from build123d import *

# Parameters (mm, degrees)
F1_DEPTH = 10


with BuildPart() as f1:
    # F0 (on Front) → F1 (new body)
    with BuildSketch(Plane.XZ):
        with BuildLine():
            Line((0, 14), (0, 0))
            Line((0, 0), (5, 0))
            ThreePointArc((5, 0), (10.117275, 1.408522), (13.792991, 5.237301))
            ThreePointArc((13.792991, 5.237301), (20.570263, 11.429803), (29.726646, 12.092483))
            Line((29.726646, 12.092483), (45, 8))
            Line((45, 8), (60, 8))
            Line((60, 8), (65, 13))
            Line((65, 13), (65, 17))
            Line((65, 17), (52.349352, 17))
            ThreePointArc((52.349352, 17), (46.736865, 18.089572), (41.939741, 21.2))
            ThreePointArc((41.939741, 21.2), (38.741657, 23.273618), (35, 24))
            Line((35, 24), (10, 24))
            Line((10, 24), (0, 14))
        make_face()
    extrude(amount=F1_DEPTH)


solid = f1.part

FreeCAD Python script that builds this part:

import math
import FreeCAD as App
import Part
import Sketcher
from FreeCAD import Vector
Q = App.Units.Quantity

doc = App.newDocument("Part")
body = doc.addObject("PartDesign::Body", "Body")

# Sketch on XZ plane
sketch1 = body.newObject("Sketcher::SketchObject", "Sketch")
sketch1.AttachmentSupport = (doc.getObject("XZ_Plane"), [""])
sketch1.MapMode = "FlatFace"
sketch1.addGeometry(Part.LineSegment(Vector(0, 14, 0), Vector(0, 0, 0)), False)
sketch1.addGeometry(Part.LineSegment(Vector(0, 0, 0), Vector(5, 0, 0)), False)
sketch1.addGeometry(Part.ArcOfCircle(Part.Circle(Vector(5, 9.999999, 0), Vector(0, 0, 1), 9.999999), math.radians(-90), math.radians(-28.442063)), False)
sketch1.addGeometry(Part.ArcOfCircle(Part.Circle(Vector(26.103179, -1.43048, 0), Vector(0, 0, 1), 14.000001), math.radians(75), math.radians(151.557928)), False)
sketch1.addGeometry(Part.LineSegment(Vector(29.726646, 12.092483, 0), Vector(45, 8, 0)), False)
sketch1.addGeometry(Part.LineSegment(Vector(45, 8, 0), Vector(60, 8, 0)), False)
sketch1.addGeometry(Part.LineSegment(Vector(60, 8, 0), Vector(65, 13, 0)), False)
sketch1.addGeometry(Part.LineSegment(Vector(65, 13, 0), Vector(65, 17, 0)), False)
sketch1.addGeometry(Part.LineSegment(Vector(65, 17, 0), Vector(52.349352, 17, 0)), False)
sketch1.addGeometry(Part.ArcOfCircle(Part.Circle(Vector(52.349349, 31.999993, 0), Vector(0, 0, 1), 14.999993), math.radians(-133.945531), math.radians(-89.999989)), False)
sketch1.addGeometry(Part.ArcOfCircle(Part.Circle(Vector(34.999997, 13.999991, 0), Vector(0, 0, 1), 10.000009), math.radians(46.054502), math.radians(89.99998)), False)
sketch1.addGeometry(Part.LineSegment(Vector(35, 24, 0), Vector(10, 24, 0)), False)
sketch1.addGeometry(Part.LineSegment(Vector(10, 24, 0), Vector(0, 14, 0)), False)
sketch1.addConstraint(Sketcher.Constraint("Coincident", 0, 2, 1, 1))
sketch1.addConstraint(Sketcher.Constraint("Coincident", 1, 2, 2, 1))
sketch1.addConstraint(Sketcher.Constraint("Coincident", 2, 2, 3, 2))
sketch1.addConstraint(Sketcher.Constraint("Coincident", 3, 1, 4, 1))
sketch1.addConstraint(Sketcher.Constraint("Coincident", 4, 2, 5, 1))
sketch1.addConstraint(Sketcher.Constraint("Coincident", 5, 2, 6, 1))
sketch1.addConstraint(Sketcher.Constraint("Coincident", 6, 2, 7, 1))
sketch1.addConstraint(Sketcher.Constraint("Coincident", 7, 2, 8, 1))
sketch1.addConstraint(Sketcher.Constraint("Coincident", 8, 2, 9, 2))
sketch1.addConstraint(Sketcher.Constraint("Coincident", 9, 1, 10, 1))
sketch1.addConstraint(Sketcher.Constraint("Coincident", 10, 2, 11, 1))
sketch1.addConstraint(Sketcher.Constraint("Coincident", 11, 2, 12, 1))
sketch1.addConstraint(Sketcher.Constraint("Coincident", 12, 2, 0, 1))
sketch1.addConstraint(Sketcher.Constraint("Vertical", 0))
sketch1.addConstraint(Sketcher.Constraint("Horizontal", 1))
sketch1.addConstraint(Sketcher.Constraint("Horizontal", 5))
sketch1.addConstraint(Sketcher.Constraint("Vertical", 7))
sketch1.addConstraint(Sketcher.Constraint("Horizontal", 8))
sketch1.addConstraint(Sketcher.Constraint("Horizontal", 11))
sketch1.addConstraint(Sketcher.Constraint("Coincident", 0, 2, -1, 1))
sketch1.addConstraint(Sketcher.Constraint("Radius", 2, Q("9.999999 mm")))
sketch1.addConstraint(Sketcher.Constraint("Radius", 3, Q("14.000001 mm")))
sketch1.addConstraint(Sketcher.Constraint("DistanceX", 1, 1, 1, 2, Q("5 mm")))
sketch1.addConstraint(Sketcher.Constraint("DistanceX", 5, 1, 5, 2, Q("15 mm")))
sketch1.addConstraint(Sketcher.Constraint("DistanceX", 11, 2, 11, 1, Q("25 mm")))
sketch1.addConstraint(Sketcher.Constraint("DistanceY", 0, 2, 0, 1, Q("14 mm")))
sketch1.addConstraint(Sketcher.Constraint("DistanceY", 7, 1, 7, 2, Q("4 mm")))
sketch1.addConstraint(Sketcher.Constraint("DistanceX", -1, 1, 2, 3, Q("5 mm")))
sketch1.addConstraint(Sketcher.Constraint("DistanceX", -1, 1, 4, 2, Q("45 mm")))
sketch1.addConstraint(Sketcher.Constraint("DistanceY", -1, 1, 4, 2, Q("8 mm")))
sketch1.addConstraint(Sketcher.Constraint("DistanceX", -1, 1, 6, 2, Q("65 mm")))
sketch1.addConstraint(Sketcher.Constraint("DistanceY", -1, 1, 6, 2, Q("13 mm")))
sketch1.addConstraint(Sketcher.Constraint("DistanceX", -1, 1, 10, 2, Q("35 mm")))
sketch1.addConstraint(Sketcher.Constraint("DistanceY", -1, 1, 10, 2, Q("24 mm")))
sketch1.addConstraint(Sketcher.Constraint("DistanceY", -1, 1, 9, 1, Q("21.2 mm")))
sketch1.addConstraint(Sketcher.Constraint("Radius", 10, Q("10.000009 mm")))
sketch1.addConstraint(Sketcher.Constraint("Radius", 9, Q("14.999993 mm")))
sketch1.addConstraint(Sketcher.Constraint("DistanceY", -1, 1, 2, 2, Q("5.237301 mm")))
sketch1.addConstraint(Sketcher.Constraint("Distance", 4, Q("15.81214 mm")))
sketch1.addConstraint(Sketcher.Constraint("DistanceX", 8, 2, 8, 1, Q("12.650648 mm")))
sketch1.addConstraint(Sketcher.Constraint("DistanceX", -1, 1, 3, 3, Q("26.103179 mm")))
sketch1.addConstraint(Sketcher.Constraint("DistanceX", -1, 1, 9, 3, Q("52.349349 mm")))
pad1 = body.newObject("PartDesign::Pad", "Pad")
pad1.Profile = sketch1
pad1.Length = 10

doc.recompute()
